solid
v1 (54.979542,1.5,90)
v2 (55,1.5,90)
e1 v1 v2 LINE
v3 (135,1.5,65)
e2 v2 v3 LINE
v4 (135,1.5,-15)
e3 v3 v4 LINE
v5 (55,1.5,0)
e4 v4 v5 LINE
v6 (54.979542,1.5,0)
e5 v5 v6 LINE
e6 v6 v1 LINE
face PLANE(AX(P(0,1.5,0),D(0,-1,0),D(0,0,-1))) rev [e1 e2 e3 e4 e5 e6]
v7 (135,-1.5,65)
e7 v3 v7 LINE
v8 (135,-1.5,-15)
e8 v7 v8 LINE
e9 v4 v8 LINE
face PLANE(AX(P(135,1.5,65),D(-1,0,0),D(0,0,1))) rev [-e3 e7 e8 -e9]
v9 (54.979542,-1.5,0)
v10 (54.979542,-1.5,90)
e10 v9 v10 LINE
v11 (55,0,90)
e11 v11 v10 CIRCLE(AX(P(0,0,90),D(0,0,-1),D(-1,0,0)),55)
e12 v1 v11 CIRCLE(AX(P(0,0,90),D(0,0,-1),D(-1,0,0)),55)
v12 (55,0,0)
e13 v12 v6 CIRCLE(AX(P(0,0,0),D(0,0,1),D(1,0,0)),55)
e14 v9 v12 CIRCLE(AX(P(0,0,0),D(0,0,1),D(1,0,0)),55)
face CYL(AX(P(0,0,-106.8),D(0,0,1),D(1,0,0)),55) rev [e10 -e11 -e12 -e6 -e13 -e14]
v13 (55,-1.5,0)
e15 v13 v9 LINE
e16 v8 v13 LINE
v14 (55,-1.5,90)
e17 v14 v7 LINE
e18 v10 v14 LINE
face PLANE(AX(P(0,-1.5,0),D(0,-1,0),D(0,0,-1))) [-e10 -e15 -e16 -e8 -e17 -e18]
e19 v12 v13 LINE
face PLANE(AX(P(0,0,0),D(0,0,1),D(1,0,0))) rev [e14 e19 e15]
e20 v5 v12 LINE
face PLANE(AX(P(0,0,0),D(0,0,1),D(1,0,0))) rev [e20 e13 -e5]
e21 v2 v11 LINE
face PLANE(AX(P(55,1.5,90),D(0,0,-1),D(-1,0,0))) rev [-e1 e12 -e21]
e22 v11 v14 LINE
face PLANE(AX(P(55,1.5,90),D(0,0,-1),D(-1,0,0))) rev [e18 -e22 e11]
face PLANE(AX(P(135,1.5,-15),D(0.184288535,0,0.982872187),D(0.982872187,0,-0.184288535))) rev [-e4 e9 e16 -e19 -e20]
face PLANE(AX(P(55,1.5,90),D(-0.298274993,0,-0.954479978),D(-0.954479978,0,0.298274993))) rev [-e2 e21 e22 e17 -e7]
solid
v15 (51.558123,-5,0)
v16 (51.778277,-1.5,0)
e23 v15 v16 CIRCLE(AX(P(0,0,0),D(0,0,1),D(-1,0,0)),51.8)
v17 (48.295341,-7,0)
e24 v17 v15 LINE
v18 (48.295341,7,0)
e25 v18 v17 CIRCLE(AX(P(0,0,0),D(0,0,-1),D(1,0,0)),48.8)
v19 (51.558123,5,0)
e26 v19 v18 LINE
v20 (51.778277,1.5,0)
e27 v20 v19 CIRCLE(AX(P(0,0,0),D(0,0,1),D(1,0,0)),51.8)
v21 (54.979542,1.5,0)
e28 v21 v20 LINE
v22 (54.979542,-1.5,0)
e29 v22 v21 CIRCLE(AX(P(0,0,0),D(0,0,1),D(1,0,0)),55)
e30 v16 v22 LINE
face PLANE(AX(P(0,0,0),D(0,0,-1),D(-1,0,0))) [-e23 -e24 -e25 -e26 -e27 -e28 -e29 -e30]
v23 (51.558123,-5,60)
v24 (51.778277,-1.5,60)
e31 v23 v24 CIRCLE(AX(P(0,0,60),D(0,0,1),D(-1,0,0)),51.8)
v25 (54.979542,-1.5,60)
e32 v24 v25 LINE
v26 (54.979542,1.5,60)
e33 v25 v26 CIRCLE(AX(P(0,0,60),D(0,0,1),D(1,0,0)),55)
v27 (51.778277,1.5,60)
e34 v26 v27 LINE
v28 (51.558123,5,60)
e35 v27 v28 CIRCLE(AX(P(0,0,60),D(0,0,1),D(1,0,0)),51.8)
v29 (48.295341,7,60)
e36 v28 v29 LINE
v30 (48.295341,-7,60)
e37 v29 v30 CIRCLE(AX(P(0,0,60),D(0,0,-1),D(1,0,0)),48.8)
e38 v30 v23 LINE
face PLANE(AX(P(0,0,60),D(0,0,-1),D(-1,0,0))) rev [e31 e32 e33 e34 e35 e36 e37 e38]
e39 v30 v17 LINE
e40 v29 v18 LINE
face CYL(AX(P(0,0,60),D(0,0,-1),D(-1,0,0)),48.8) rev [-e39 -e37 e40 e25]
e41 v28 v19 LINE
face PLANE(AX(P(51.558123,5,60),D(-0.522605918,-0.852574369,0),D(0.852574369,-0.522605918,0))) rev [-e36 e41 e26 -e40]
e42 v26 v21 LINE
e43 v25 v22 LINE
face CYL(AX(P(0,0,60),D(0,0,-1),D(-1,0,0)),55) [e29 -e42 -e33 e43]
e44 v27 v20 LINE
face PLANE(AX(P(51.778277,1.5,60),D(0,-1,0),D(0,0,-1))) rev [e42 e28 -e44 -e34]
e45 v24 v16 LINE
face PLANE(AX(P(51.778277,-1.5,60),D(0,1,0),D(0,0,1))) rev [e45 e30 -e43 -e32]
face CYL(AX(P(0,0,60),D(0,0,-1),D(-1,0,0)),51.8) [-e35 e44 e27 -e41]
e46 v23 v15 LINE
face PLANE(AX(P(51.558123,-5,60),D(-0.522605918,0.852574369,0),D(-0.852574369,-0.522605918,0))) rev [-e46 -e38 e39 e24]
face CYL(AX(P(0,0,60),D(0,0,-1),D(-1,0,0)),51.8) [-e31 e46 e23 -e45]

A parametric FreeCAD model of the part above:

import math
import FreeCAD as App
import Part
import Sketcher


def add_polygon(sketch, points):
    """Adds a closed chain of lines whose ends are joined by coincident constraints."""
    first, n = sketch.GeometryCount, len(points)
    for a, b in zip(points, points[1:] + points[:1]):
        sketch.addGeometry(Part.LineSegment(App.Vector(*a, 0), App.Vector(*b, 0)), False)
    for i in range(n):
        sketch.addConstraint(Sketcher.Constraint("Coincident", first + i, 2, first + (i + 1) % n, 1))

doc = App.newDocument("Part")
body = doc.addObject("PartDesign::Body", "Body")

sketch1 = doc.addObject("Sketcher::SketchObject", "Sketch")
body.addObject(sketch1)
sketch1.AttachmentSupport = (doc.XY_Plane, [""])
sketch1.MapMode = "FlatFace"
sketch1.addGeometry(Part.Circle(App.Vector(0, 0, 0), App.Vector(0, 0, 1), 55), False)
sketch1.addConstraint([
    Sketcher.Constraint("Coincident", 0, 3, -1, 1),
    Sketcher.Constraint("Diameter", 0, 110.0),
])
pad1 = doc.addObject("PartDesign::Pad", "Pad")
body.addObject(pad1)
pad1.Profile = sketch1
pad1.Length = 190

sketch2 = doc.addObject("Sketcher::SketchObject", "Sketch001")
body.addObject(sketch2)
sketch2.AttachmentSupport = (doc.XY_Plane, [""])
sketch2.MapMode = "FlatFace"
sketch2.AttachmentOffset = App.Placement(App.Vector(0, 0, 190), App.Rotation())
sketch2.addGeometry(Part.Circle(App.Vector(0, 0, 0), App.Vector(0, 0, 1), 52), False)
sketch2.addConstraint([
    Sketcher.Constraint("Coincident", 0, 3, -1, 1),
    Sketcher.Constraint("Diameter", 0, 103.6),
])
pocket1 = doc.addObject("PartDesign::Pocket", "Pocket")
body.addObject(pocket1)
pocket1.Profile = sketch2
pocket1.Length = 186.8

sketch3 = doc.addObject("Sketcher::SketchObject", "Sketch002")
body.addObject(sketch3)
sketch3.AttachmentSupport = (doc.XY_Plane, [""])
sketch3.MapMode = "FlatFace"
sketch3.addGeometry(Part.Circle(App.Vector(0, 0, 0), App.Vector(0, 0, 1), 15), False)
sketch3.addConstraint([
    Sketcher.Constraint("Coincident", 0, 3, -1, 1),
    Sketcher.Constraint("Diameter", 0, 30.0),
])
pocket2 = doc.addObject("PartDesign::Pocket", "Pocket001")
body.addObject(pocket2)
pocket2.Profile = sketch3
pocket2.Length = 10
pocket2.Reversed = True

sketch4 = doc.addObject("Sketcher::SketchObject", "Sketch003")
body.addObject(sketch4)
sketch4.AttachmentSupport = (doc.XY_Plane, [""])
sketch4.MapMode = "FlatFace"
sketch4.AttachmentOffset = App.Placement(App.Vector(0, 0, 3.2), App.Rotation())
sketch4.addGeometry([
    Part.Circle(App.Vector(0, 0, 0), App.Vector(0, 0, 1), 18),
    Part.Circle(App.Vector(0, 0, 0), App.Vector(0, 0, 1), 15),
], False)
sketch4.addConstraint([
    Sketcher.Constraint("Coincident", 0, 3, -1, 1),
    Sketcher.Constraint("Coincident", 1, 3, -1, 1),
    Sketcher.Constraint("Diameter", 1, 30.0),
    Sketcher.Constraint("Diameter", 0, 36.4),
])
pad2 = doc.addObject("PartDesign::Pad", "Pad001")
body.addObject(pad2)
pad2.Profile = sketch4
pad2.Length = 188

sketch5 = doc.addObject("Sketcher::SketchObject", "Sketch004")
body.addObject(sketch5)
sketch5.AttachmentSupport = (doc.XY_Plane, [""])
sketch5.MapMode = "FlatFace"
sketch5.AttachmentOffset = App.Placement(App.Vector(0, 0, 190), App.Rotation())
sketch5.addGeometry(Part.Circle(App.Vector(0, 0, 0), App.Vector(0, 0, 1), 55), False)
sketch5.addConstraint([
    Sketcher.Constraint("Coincident", 0, 3, -1, 1),
    Sketcher.Constraint("Diameter", 0, 110.0),
])
pad3 = doc.addObject("PartDesign::Pad", "Pad002")
body.addObject(pad3)
pad3.Profile = sketch5
pad3.Length = 3.2

sketch6 = doc.addObject("Sketcher::SketchObject", "Sketch005")
body.addObject(sketch6)
sketch6.AttachmentSupport = (doc.XZ_Plane, [""])
sketch6.MapMode = "FlatFace"
add_polygon(sketch6, [(55, 90), (135, 65), (135, -15), (55, 0), (53, 0), (53, 90)])
sketch6.addConstraint([
    Sketcher.Constraint("Vertical", 1),
    Sketcher.Constraint("Horizontal", 3),
    Sketcher.Constraint("Vertical", 4),
    Sketcher.Constraint("Horizontal", 5),
    Sketcher.Constraint("PointOnObject", 2, 2, -1),
    Sketcher.Constraint("Vertical", 2, 2, 5, 2),
    Sketcher.Constraint("DistanceX", 3, 2, 3, 1, 2.0),
    Sketcher.Constraint("DistanceY", 1, 2, 1, 1, 80.0),
    Sketcher.Constraint("DistanceY", 4, 1, 4, 2, 90.0),
    Sketcher.Constraint("DistanceX", -1, 1, 0, 2, 135.0),
    Sketcher.Constraint("DistanceY", -1, 1, 0, 2, 65.0),
    Sketcher.Constraint("DistanceX", -1, 1, 2, 2, 55.0),
])
pad4 = doc.addObject("PartDesign::Pad", "Pad003")
body.addObject(pad4)
pad4.Profile = sketch6
pad4.Length = 3
pad4.Midplane = True

sketch7 = doc.addObject("Sketcher::SketchObject", "Sketch006")
body.addObject(sketch7)
sketch7.AttachmentSupport = (doc.XY_Plane, [""])
sketch7.MapMode = "FlatFace"
sketch7.AttachmentOffset = App.Placement(App.Vector(0, 0, -106.8), App.Rotation())
sketch7.addGeometry([
    Part.LineSegment(App.Vector(24, -150, 0), App.Vector(24, -49, 0)),
    Part.ArcOfCircle(Part.Circle(App.Vector(0, 0, 0), App.Vector(0, 0, 1), 55), math.radians(-64), math.radians(64)),
    Part.LineSegment(App.Vector(24, 49, 0), App.Vector(24, 160, 0)),
    Part.LineSegment(App.Vector(24, 160, 0), App.Vector(-116, 160, 0)),
    Part.LineSegment(App.Vector(-116, 160, 0), App.Vector(-116, -150, 0)),
    Part.LineSegment(App.Vector(-116, -150, 0), App.Vector(24, -150, 0)),
], False)
sketch7.addConstraint([
    Sketcher.Constraint("Coincident", 0, 2, 1, 1),
    Sketcher.Constraint("Coincident", 1, 2, 2, 1),
    Sketcher.Constraint("Coincident", 2, 2, 3, 1),
    Sketcher.Constraint("Coincident", 3, 2, 4, 1),
    Sketcher.Constraint("Coincident", 4, 2, 5, 1),
    Sketcher.Constraint("Coincident", 5, 2, 0, 1),
    Sketcher.Constraint("Vertical", 0),
    Sketcher.Constraint("Vertical", 2),
    Sketcher.Constraint("Horizontal", 3),
    Sketcher.Constraint("Vertical", 4),
    Sketcher.Constraint("Horizontal", 5),
    Sketcher.Constraint("Coincident", 1, 3, -1, 1),
    Sketcher.Constraint("Vertical", 0, 2, 1, 2),
    Sketcher.Constraint("Radius", 1, 55.0),
    Sketcher.Constraint("DistanceY", 0, 1, 0, 2, 100.83806),
    Sketcher.Constraint("DistanceY", 4, 2, 4, 1, 309.690919),
    Sketcher.Constraint("DistanceX", 3, 2, 3, 1, 140.583378),
    Sketcher.Constraint("DistanceY", 2, 1, 2, 2, 110.210286),
])
pocket3 = doc.addObject("PartDesign::Pocket", "Pocket002")
body.addObject(pocket3)
pocket3.Profile = sketch7
pocket3.Length = 300
pocket3.Reversed = True
body2 = doc.addObject("PartDesign::Body", "Body001")

sketch8 = doc.addObject("Sketcher::SketchObject", "Sketch007")
body2.addObject(sketch8)
sketch8.AttachmentSupport = (doc.getObject("XY_Plane001"), [""])
sketch8.MapMode = "FlatFace"
sketch8.addGeometry([
    Part.LineSegment(App.Vector(55, 1.5, 0), App.Vector(51.8, 1.5, 0)),
    Part.ArcOfCircle(Part.Circle(App.Vector(0, 0, 0), App.Vector(0, 0, 1), 51.8), math.radians(1.66), math.radians(5.54)),
    Part.LineSegment(App.Vector(51.6, 5, 0), App.Vector(48.3, 7, 0)),
    Part.ArcOfCircle(Part.Circle(App.Vector(0, 0, 0), App.Vector(0, 0, 1), 48.8), math.radians(-8.25), math.radians(8.25)),
    Part.LineSegment(App.Vector(48.3, -7, 0), App.Vector(51.6, -5, 0)),
    Part.ArcOfCircle(Part.Circle(App.Vector(0, 0, 0), App.Vector(0, 0, 1), 51.8), math.radians(-5.54), math.radians(-1.66)),
    Part.LineSegment(App.Vector(51.8, -1.5, 0), App.Vector(55, -1.5, 0)),
    Part.ArcOfCircle(Part.Circle(App.Vector(0, 0, 0), App.Vector(0, 0, 1), 55), math.radians(-1.56), math.radians(1.56)),
], False)
sketch8.addConstraint([
    Sketcher.Constraint("Coincident", 0, 2, 1, 1),
    Sketcher.Constraint("Coincident", 1, 2, 2, 1),
    Sketcher.Constraint("Coincident", 2, 2, 3, 2),
    Sketcher.Constraint("Coincident", 3, 1, 4, 1),
    Sketcher.Constraint("Coincident", 4, 2, 5, 1),
    Sketcher.Constraint("Coincident", 5, 2, 6, 1),
    Sketcher.Constraint("Coincident", 6, 2, 7, 1),
    Sketcher.Constraint("Coincident", 7, 2, 0, 1),
    Sketcher.Constraint("Horizontal", 0),
    Sketcher.Constraint("Horizontal", 6),
    Sketcher.Constraint("Coincident", 1, 3, -1, 1),
    Sketcher.Constraint("Coincident", 3, 3, -1, 1),
    Sketcher.Constraint("Coincident", 5, 3, -1, 1),
    Sketcher.Constraint("Coincident", 7, 3, -1, 1),
    Sketcher.Constraint("Equal", 1, 5),
    Sketcher.Constraint("Vertical", 2, 2, 3, 1),
    Sketcher.Constraint("Vertical", 1, 2, 4, 2),
    Sketcher.Constraint("Vertical", 0, 2, 5, 2),
    Sketcher.Constraint("Radius", 7, 55.000001),
    Sketcher.Constraint("Radius", 1, 51.799999),
    Sketcher.Constraint("Radius", 3, 48.8),
    Sketcher.Constraint("DistanceY", -1, 1, 1, 2, 5.0),
    Sketcher.Constraint("DistanceY", -1, 1, 2, 2, 7.0),
    Sketcher.Constraint("DistanceY", 5, 2, 0, 2, 3.0),
])
pad5 = doc.addObject("PartDesign::Pad", "Pad004")
body2.addObject(pad5)
pad5.Profile = sketch8
pad5.Length = 60

doc.recompute()
